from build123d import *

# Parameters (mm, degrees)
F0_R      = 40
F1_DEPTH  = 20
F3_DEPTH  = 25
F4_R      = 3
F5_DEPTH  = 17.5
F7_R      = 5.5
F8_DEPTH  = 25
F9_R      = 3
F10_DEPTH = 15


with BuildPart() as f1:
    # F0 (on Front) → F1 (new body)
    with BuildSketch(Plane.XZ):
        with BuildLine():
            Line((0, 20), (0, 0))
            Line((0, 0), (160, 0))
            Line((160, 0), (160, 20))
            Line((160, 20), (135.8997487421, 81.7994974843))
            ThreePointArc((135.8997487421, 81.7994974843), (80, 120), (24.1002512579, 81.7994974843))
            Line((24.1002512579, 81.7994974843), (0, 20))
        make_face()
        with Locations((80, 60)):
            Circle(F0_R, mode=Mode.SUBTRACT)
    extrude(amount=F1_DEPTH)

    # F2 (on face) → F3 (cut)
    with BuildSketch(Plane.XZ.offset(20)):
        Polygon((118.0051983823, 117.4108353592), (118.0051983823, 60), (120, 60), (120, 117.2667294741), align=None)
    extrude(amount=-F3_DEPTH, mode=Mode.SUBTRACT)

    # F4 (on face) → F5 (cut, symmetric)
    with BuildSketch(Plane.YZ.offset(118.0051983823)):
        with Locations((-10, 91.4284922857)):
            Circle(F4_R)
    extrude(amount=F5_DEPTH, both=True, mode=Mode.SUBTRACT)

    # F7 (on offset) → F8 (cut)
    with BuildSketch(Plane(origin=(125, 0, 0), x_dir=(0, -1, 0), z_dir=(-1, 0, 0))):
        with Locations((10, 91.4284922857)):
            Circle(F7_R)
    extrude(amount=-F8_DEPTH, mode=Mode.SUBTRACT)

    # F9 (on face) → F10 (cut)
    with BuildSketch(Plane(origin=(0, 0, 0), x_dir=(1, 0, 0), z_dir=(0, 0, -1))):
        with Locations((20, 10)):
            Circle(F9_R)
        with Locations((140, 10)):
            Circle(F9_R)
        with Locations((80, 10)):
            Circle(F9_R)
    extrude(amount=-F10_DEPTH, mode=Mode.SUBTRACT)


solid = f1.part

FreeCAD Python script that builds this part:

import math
import FreeCAD as App
import Part
import Sketcher

V = App.Vector


def add_polygon(sketch, points):
    """Adds a closed chain of lines whose ends are joined by coincident constraints."""
    first, n = sketch.GeometryCount, len(points)
    for a, b in zip(points, points[1:] + points[:1]):
        sketch.addGeometry(Part.LineSegment(App.Vector(*a, 0), App.Vector(*b, 0)), False)
    for i in range(n):
        sketch.addConstraint(Sketcher.Constraint("Coincident", first + i, 2, first + (i + 1) % n, 1))

doc = App.newDocument("Part")
body = doc.addObject("PartDesign::Body", "Body")

sketch1 = body.newObject("Sketcher::SketchObject", "Sketch")
sketch1.AttachmentSupport = (doc.getObject("XZ_Plane"), [""])
sketch1.MapMode = "FlatFace"
sketch1.addGeometry(Part.LineSegment(V(0, 20, 0), V(0, 0, 0)), False)
sketch1.addGeometry(Part.LineSegment(V(0, 0, 0), V(160, 0, 0)), False)
sketch1.addGeometry(Part.LineSegment(V(160, 0, 0), V(160, 20, 0)), False)
sketch1.addGeometry(Part.LineSegment(V(160, 20, 0), V(136, 82, 0)), False)
sketch1.addGeometry(Part.ArcOfCircle(Part.Circle(V(80, 60, 0), V(0, 0, 1), 60), math.radians(21), math.radians(159)), False)
sketch1.addGeometry(Part.LineSegment(V(24, 82, 0), V(0, 20, 0)), False)
sketch1.addGeometry(Part.Circle(V(80, 60, 0), V(0, 0, 1), 40), False)
sketch1.addConstraint(Sketcher.Constraint("Coincident", 0, 2, 1, 1))
sketch1.addConstraint(Sketcher.Constraint("Coincident", 1, 2, 2, 1))
sketch1.addConstraint(Sketcher.Constraint("Coincident", 2, 2, 3, 1))
sketch1.addConstraint(Sketcher.Constraint("Tangent", 3, 2, 4, 1))
sketch1.addConstraint(Sketcher.Constraint("Tangent", 4, 2, 5, 1))
sketch1.addConstraint(Sketcher.Constraint("Coincident", 5, 2, 0, 1))
sketch1.addConstraint(Sketcher.Constraint("Vertical", 0))
sketch1.addConstraint(Sketcher.Constraint("Horizontal", 1))
sketch1.addConstraint(Sketcher.Constraint("Vertical", 2))
sketch1.addConstraint(Sketcher.Constraint("Coincident", 0, 2, -1, 1))
sketch1.addConstraint(Sketcher.Constraint("Coincident", 6, 3, 4, 3))
sketch1.addConstraint(Sketcher.Constraint("Horizontal", 3, 2, 4, 2))
sketch1.addConstraint(Sketcher.Constraint("Horizontal", 2, 2, 5, 2))
sketch1.addConstraint(Sketcher.Constraint("Diameter", 6, 80.0))
sketch1.addConstraint(Sketcher.Constraint("Radius", 4, 60.0))
sketch1.addConstraint(Sketcher.Constraint("DistanceX", 1, 1, 1, 2, 160.0))
sketch1.addConstraint(Sketcher.Constraint("DistanceY", 0, 2, 0, 1, 20.0))
sketch1.addConstraint(Sketcher.Constraint("DistanceY", -1, 1, 4, 3, 60.0))
pad1 = body.newObject("PartDesign::Pad", "Pad")
pad1.Profile = sketch1
pad1.Length = 20

sketch2 = body.newObject("Sketcher::SketchObject", "Sketch001")
sketch2.AttachmentSupport = (doc.getObject("XZ_Plane"), [""])
sketch2.MapMode = "FlatFace"
sketch2.AttachmentOffset = App.Placement(V(0, 0, 20), App.Rotation())
add_polygon(sketch2, [(118, 117.4), (118, 60), (120, 60), (120, 117.3)])
sketch2.addConstraint(Sketcher.Constraint("Vertical", 0))
sketch2.addConstraint(Sketcher.Constraint("Horizontal", 1))
sketch2.addConstraint(Sketcher.Constraint("Vertical", 2))
sketch2.addConstraint(Sketcher.Constraint("Distance", 3, 2.0))
sketch2.addConstraint(Sketcher.Constraint("DistanceY", -1, 1, 0, 2, 60.0))
sketch2.addConstraint(Sketcher.Constraint("DistanceX", -1, 1, 1, 2, 120.0))
sketch2.addConstraint(Sketcher.Constraint("DistanceX", 1, 1, 1, 2, 1.994802))
sketch2.addConstraint(Sketcher.Constraint("DistanceY", 2, 1, 2, 2, 57.266729))
pocket1 = body.newObject("PartDesign::Pocket", "Pocket")
pocket1.Profile = sketch2
pocket1.Length = 25

sketch3 = body.newObject("Sketcher::SketchObject", "Sketch002")
sketch3.AttachmentSupport = (doc.getObject("YZ_Plane"), [""])
sketch3.MapMode = "FlatFace"
sketch3.AttachmentOffset = App.Placement(V(0, 0, 118.005198), App.Rotation())
sketch3.addGeometry(Part.Circle(V(-10, 91.4, 0), V(0, 0, 1), 3), False)
sketch3.addConstraint(Sketcher.Constraint("Diameter", 0, 6.0))
sketch3.addConstraint(Sketcher.Constraint("DistanceX", 0, 3, -1, 1, 10.0))
sketch3.addConstraint(Sketcher.Constraint("DistanceY", -1, 1, 0, 3, 91.428492))
pocket2 = body.newObject("PartDesign::Pocket", "Pocket001")
pocket2.Profile = sketch3
pocket2.Length = 35
pocket2.Midplane = True

sketch4 = body.newObject("Sketcher::SketchObject", "Sketch003")
sketch4.AttachmentSupport = (doc.getObject("YZ_Plane"), [""])
sketch4.MapMode = "FlatFace"
sketch4.AttachmentOffset = App.Placement(V(0, 0, 125), App.Rotation())
sketch4.addGeometry(Part.Circle(V(-10, 91, 0), V(0, 0, 1), 6), False)
sketch4.addConstraint(Sketcher.Constraint("Diameter", 0, 11.0))
sketch4.addConstraint(Sketcher.Constraint("DistanceX", 0, 3, -1, 1, 10.0))
sketch4.addConstraint(Sketcher.Constraint("DistanceY", -1, 1, 0, 3, 91.428492))
pocket3 = body.newObject("PartDesign::Pocket", "Pocket002")
pocket3.Profile = sketch4
pocket3.Length = 25
pocket3.Reversed = True

sketch5 = body.newObject("Sketcher::SketchObject", "Sketch004")
sketch5.AttachmentSupport = (doc.getObject("XY_Plane"), [""])
sketch5.MapMode = "FlatFace"
sketch5.addGeometry(Part.Circle(V(20, -10, 0), V(0, 0, 1), 3), False)
sketch5.addGeometry(Part.Circle(V(140, -10, 0), V(0, 0, 1), 3), False)
sketch5.addGeometry(Part.Circle(V(80, -10, 0), V(0, 0, 1), 3), False)
sketch5.addConstraint(Sketcher.Constraint("Equal", 0, 1))
sketch5.addConstraint(Sketcher.Constraint("Equal", 1, 2))
sketch5.addConstraint(Sketcher.Constraint("Horizontal", 0, 3, 1, 3))
sketch5.addConstraint(Sketcher.Constraint("Horizontal", 1, 3, 2, 3))
sketch5.addConstraint(Sketcher.Constraint("Diameter", 0, 6.0))
sketch5.addConstraint(Sketcher.Constraint("DistanceX", -1, 1, 0, 3, 20.0))
sketch5.addConstraint(Sketcher.Constraint("DistanceY", 0, 3, -1, 1, 10.0))
sketch5.addConstraint(Sketcher.Constraint("DistanceX", -1, 1, 1, 3, 140.0))
sketch5.addConstraint(Sketcher.Constraint("DistanceX", -1, 1, 2, 3, 80.0))
pocket4 = body.newObject("PartDesign::Pocket", "Pocket003")
pocket4.Profile = sketch5
pocket4.Length = 15
pocket4.Reversed = True

doc.recompute()
